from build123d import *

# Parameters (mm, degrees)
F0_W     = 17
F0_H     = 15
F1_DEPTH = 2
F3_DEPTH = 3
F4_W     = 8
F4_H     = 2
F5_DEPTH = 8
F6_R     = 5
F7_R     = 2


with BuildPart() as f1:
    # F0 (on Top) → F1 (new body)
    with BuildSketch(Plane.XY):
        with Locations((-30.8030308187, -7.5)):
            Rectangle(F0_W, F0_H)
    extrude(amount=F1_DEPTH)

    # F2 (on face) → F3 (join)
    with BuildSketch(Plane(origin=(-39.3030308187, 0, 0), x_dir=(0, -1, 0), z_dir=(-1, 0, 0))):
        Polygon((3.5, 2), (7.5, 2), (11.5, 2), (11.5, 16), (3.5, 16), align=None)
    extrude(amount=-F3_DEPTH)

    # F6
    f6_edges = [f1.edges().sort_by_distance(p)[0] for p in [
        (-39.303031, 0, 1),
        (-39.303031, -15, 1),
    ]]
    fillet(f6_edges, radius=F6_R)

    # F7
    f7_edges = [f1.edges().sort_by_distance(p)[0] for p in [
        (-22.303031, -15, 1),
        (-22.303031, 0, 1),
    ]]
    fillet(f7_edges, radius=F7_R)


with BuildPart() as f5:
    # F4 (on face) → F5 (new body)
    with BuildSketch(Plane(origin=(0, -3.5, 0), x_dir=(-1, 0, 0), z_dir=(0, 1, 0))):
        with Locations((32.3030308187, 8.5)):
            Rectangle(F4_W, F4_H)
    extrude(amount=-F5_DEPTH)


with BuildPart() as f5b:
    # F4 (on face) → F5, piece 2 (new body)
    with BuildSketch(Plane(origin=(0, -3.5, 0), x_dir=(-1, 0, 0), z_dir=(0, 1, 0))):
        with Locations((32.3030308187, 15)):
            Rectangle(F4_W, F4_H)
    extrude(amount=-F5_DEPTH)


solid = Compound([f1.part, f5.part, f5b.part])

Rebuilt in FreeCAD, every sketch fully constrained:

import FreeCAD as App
import Part
import Sketcher

V = App.Vector
Q = App.Units.Quantity


def edges_at(feature, points):
    """Names of the edges that pass closest to the given points."""
    edges = feature.Shape.Edges
    near = lambda p: min(range(len(edges)), key=lambda i: edges[i].distToShape(Part.Vertex(*p))[0])
    return sorted({f"Edge{near(p) + 1}" for p in points})

doc = App.newDocument("Part")
params = doc.addObject("Spreadsheet::Sheet", "Params")
for row, (alias, value) in enumerate([
    ("sketch1_width", "17 mm"),
    ("sketch1_height", "15 mm"),
    ("pad1_length", "2 mm"),
    ("sketch2_width", "8 mm"),
    ("sketch2_height", "14 mm"),
    ("pad2_length", "3 mm"),
    ("fillet_radius", "5 mm"),
    ("fillet2_radius", "2 mm"),
    ("sketch3_width", "8 mm"),
    ("sketch3_height", "2 mm"),
    ("pad3_length", "8 mm"),
    ("sketch4_width", "8 mm"),
    ("sketch4_height", "2 mm"),
    ("pad4_length", "8 mm"),
], start=1):
    params.set(f"A{row}", alias)
    params.set(f"B{row}", "=" + value)
    params.setAlias(f"B{row}", alias)

body = doc.addObject("PartDesign::Body", "Body")

sketch1 = doc.addObject("Sketcher::SketchObject", "Sketch")
body.addObject(sketch1)
sketch1.AttachmentSupport = (doc.XY_Plane, [""])
sketch1.MapMode = "FlatFace"
sketch1.addGeometry(Part.LineSegment(V(-39, 0, 0), V(-39, -15, 0)), False)
sketch1.addGeometry(Part.LineSegment(V(-39, -15, 0), V(-22, -15, 0)), False)
sketch1.addGeometry(Part.LineSegment(V(-22, -15, 0), V(-22, 0, 0)), False)
sketch1.addGeometry(Part.LineSegment(V(-22, 0, 0), V(-39, 0, 0)), False)
sketch1.addConstraint(Sketcher.Constraint("Coincident", 0, 2, 1, 1))
sketch1.addConstraint(Sketcher.Constraint("Coincident", 1, 2, 2, 1))
sketch1.addConstraint(Sketcher.Constraint("Coincident", 2, 2, 3, 1))
sketch1.addConstraint(Sketcher.Constraint("Coincident", 3, 2, 0, 1))
sketch1.addConstraint(Sketcher.Constraint("Vertical", 0))
sketch1.addConstraint(Sketcher.Constraint("Horizontal", 1))
sketch1.addConstraint(Sketcher.Constraint("Vertical", 2))
sketch1.addConstraint(Sketcher.Constraint("Horizontal", 3))
sketch1.addConstraint(Sketcher.Constraint("PointOnObject", 2, 2, -1))
sketch1.addConstraint(Sketcher.Constraint("DistanceX", 1, 1, 1, 2, Q("17 mm")))
sketch1.addConstraint(Sketcher.Constraint("DistanceY", 0, 2, 0, 1, Q("15 mm")))
sketch1.addConstraint(Sketcher.Constraint("DistanceX", 0, 2, -1, 1, Q("39.303031 mm")))
sketch1.setExpression("Constraints[9]", "Params.sketch1_width")
sketch1.setExpression("Constraints[10]", "Params.sketch1_height")
pad1 = doc.addObject("PartDesign::Pad", "Pad")
body.addObject(pad1)
pad1.Profile = sketch1
pad1.setExpression("Length", "Params.pad1_length")

sketch2 = doc.addObject("Sketcher::SketchObject", "Sketch001")
body.addObject(sketch2)
sketch2.AttachmentSupport = (doc.YZ_Plane, [""])
sketch2.MapMode = "FlatFace"
sketch2.AttachmentOffset = App.Placement(V(0, 0, -39.303031), App.Rotation())
sketch2.addGeometry(Part.LineSegment(V(-4, 2, 0), V(-12, 2, 0)), False)
sketch2.addGeometry(Part.LineSegment(V(-12, 2, 0), V(-12, 16, 0)), False)
sketch2.addGeometry(Part.LineSegment(V(-12, 16, 0), V(-4, 16, 0)), False)
sketch2.addGeometry(Part.LineSegment(V(-4, 16, 0), V(-4, 2, 0)), False)
sketch2.addConstraint(Sketcher.Constraint("Coincident", 0, 2, 1, 1))
sketch2.addConstraint(Sketcher.Constraint("Coincident", 1, 2, 2, 1))
sketch2.addConstraint(Sketcher.Constraint("Coincident", 2, 2, 3, 1))
sketch2.addConstraint(Sketcher.Constraint("Coincident", 3, 2, 0, 1))
sketch2.addConstraint(Sketcher.Constraint("Horizontal", 0))
sketch2.addConstraint(Sketcher.Constraint("Vertical", 1))
sketch2.addConstraint(Sketcher.Constraint("Horizontal", 2))
sketch2.addConstraint(Sketcher.Constraint("Vertical", 3))
sketch2.addConstraint(Sketcher.Constraint("DistanceX", 0, 2, 0, 1, Q("8 mm")))
sketch2.addConstraint(Sketcher.Constraint("DistanceY", 1, 1, 1, 2, Q("14 mm")))
sketch2.addConstraint(Sketcher.Constraint("DistanceY", -1, 1, 0, 2, Q("2 mm")))
sketch2.addConstraint(Sketcher.Constraint("DistanceX", 0, 2, -1, 1, Q("11.5 mm")))
sketch2.setExpression("Constraints[8]", "Params.sketch2_width")
sketch2.setExpression("Constraints[9]", "Params.sketch2_height")
pad2 = doc.addObject("PartDesign::Pad", "Pad001")
body.addObject(pad2)
pad2.Profile = sketch2
pad2.setExpression("Length", "Params.pad2_length")
doc.recompute()

fillet = doc.addObject("PartDesign::Fillet", "Fillet")
body.addObject(fillet)
fillet.Base = (pad2, edges_at(pad2, [(-39.303, 0, 1), (-39.303, -15, 1)]))
fillet.setExpression("Radius", "Params.fillet_radius")
doc.recompute()

fillet2 = doc.addObject("PartDesign::Fillet", "Fillet001")
body.addObject(fillet2)
fillet2.Base = (fillet, edges_at(fillet, [(-22.303, -15, 1), (-22.303, 0, 1)]))
fillet2.setExpression("Radius", "Params.fillet2_radius")
body2 = doc.addObject("PartDesign::Body", "Body001")

sketch3 = doc.addObject("Sketcher::SketchObject", "Sketch002")
body2.addObject(sketch3)
sketch3.AttachmentSupport = (doc.getObject("XZ_Plane001"), [""])
sketch3.MapMode = "FlatFace"
sketch3.AttachmentOffset = App.Placement(V(0, 0, 3.5), App.Rotation())
sketch3.addGeometry(Part.LineSegment(V(-28.3, 9.5, 0), V(-28.3, 7.5, 0)), False)
sketch3.addGeometry(Part.LineSegment(V(-28.3, 7.5, 0), V(-36.3, 7.5, 0)), False)
sketch3.addGeometry(Part.LineSegment(V(-36.3, 7.5, 0), V(-36.3, 9.5, 0)), False)
sketch3.addGeometry(Part.LineSegment(V(-36.3, 9.5, 0), V(-28.3, 9.5, 0)), False)
sketch3.addConstraint(Sketcher.Constraint("Coincident", 0, 2, 1, 1))
sketch3.addConstraint(Sketcher.Constraint("Coincident", 1, 2, 2, 1))
sketch3.addConstraint(Sketcher.Constraint("Coincident", 2, 2, 3, 1))
sketch3.addConstraint(Sketcher.Constraint("Coincident", 3, 2, 0, 1))
sketch3.addConstraint(Sketcher.Constraint("Vertical", 0))
sketch3.addConstraint(Sketcher.Constraint("Horizontal", 1))
sketch3.addConstraint(Sketcher.Constraint("Vertical", 2))
sketch3.addConstraint(Sketcher.Constraint("Horizontal", 3))
sketch3.addConstraint(Sketcher.Constraint("DistanceX", 1, 2, 1, 1, Q("8 mm")))
sketch3.addConstraint(Sketcher.Constraint("DistanceY", 0, 2, 0, 1, Q("2 mm")))
sketch3.addConstraint(Sketcher.Constraint("DistanceY", -1, 1, 0, 2, Q("7.5 mm")))
sketch3.addConstraint(Sketcher.Constraint("DistanceX", 0, 2, -1, 1, Q("28.303031 mm")))
sketch3.setExpression("Constraints[8]", "Params.sketch3_width")
sketch3.setExpression("Constraints[9]", "Params.sketch3_height")
pad3 = doc.addObject("PartDesign::Pad", "Pad002")
body2.addObject(pad3)
pad3.Profile = sketch3
pad3.setExpression("Length", "Params.pad3_length")
body3 = doc.addObject("PartDesign::Body", "Body002")

sketch4 = doc.addObject("Sketcher::SketchObject", "Sketch003")
body3.addObject(sketch4)
sketch4.AttachmentSupport = (doc.getObject("XZ_Plane002"), [""])
sketch4.MapMode = "FlatFace"
sketch4.AttachmentOffset = App.Placement(V(0, 0, 3.5), App.Rotation())
sketch4.addGeometry(Part.LineSegment(V(-28.3, 16, 0), V(-28.3, 14, 0)), False)
sketch4.addGeometry(Part.LineSegment(V(-28.3, 14, 0), V(-36.3, 14, 0)), False)
sketch4.addGeometry(Part.LineSegment(V(-36.3, 14, 0), V(-36.3, 16, 0)), False)
sketch4.addGeometry(Part.LineSegment(V(-36.3, 16, 0), V(-28.3, 16, 0)), False)
sketch4.addConstraint(Sketcher.Constraint("Coincident", 0, 2, 1, 1))
sketch4.addConstraint(Sketcher.Constraint("Coincident", 1, 2, 2, 1))
sketch4.addConstraint(Sketcher.Constraint("Coincident", 2, 2, 3, 1))
sketch4.addConstraint(Sketcher.Constraint("Coincident", 3, 2, 0, 1))
sketch4.addConstraint(Sketcher.Constraint("Vertical", 0))
sketch4.addConstraint(Sketcher.Constraint("Horizontal", 1))
sketch4.addConstraint(Sketcher.Constraint("Vertical", 2))
sketch4.addConstraint(Sketcher.Constraint("Horizontal", 3))
sketch4.addConstraint(Sketcher.Constraint("DistanceX", 1, 2, 1, 1, Q("8 mm")))
sketch4.addConstraint(Sketcher.Constraint("DistanceY", 0, 2, 0, 1, Q("2 mm")))
sketch4.addConstraint(Sketcher.Constraint("DistanceY", -1, 1, 0, 2, Q("14 mm")))
sketch4.addConstraint(Sketcher.Constraint("DistanceX", 0, 2, -1, 1, Q("28.303031 mm")))
sketch4.setExpression("Constraints[8]", "Params.sketch4_width")
sketch4.setExpression("Constraints[9]", "Params.sketch4_height")
pad4 = doc.addObject("PartDesign::Pad", "Pad003")
body3.addObject(pad4)
pad4.Profile = sketch4
pad4.setExpression("Length", "Params.pad4_length")

doc.recompute()
